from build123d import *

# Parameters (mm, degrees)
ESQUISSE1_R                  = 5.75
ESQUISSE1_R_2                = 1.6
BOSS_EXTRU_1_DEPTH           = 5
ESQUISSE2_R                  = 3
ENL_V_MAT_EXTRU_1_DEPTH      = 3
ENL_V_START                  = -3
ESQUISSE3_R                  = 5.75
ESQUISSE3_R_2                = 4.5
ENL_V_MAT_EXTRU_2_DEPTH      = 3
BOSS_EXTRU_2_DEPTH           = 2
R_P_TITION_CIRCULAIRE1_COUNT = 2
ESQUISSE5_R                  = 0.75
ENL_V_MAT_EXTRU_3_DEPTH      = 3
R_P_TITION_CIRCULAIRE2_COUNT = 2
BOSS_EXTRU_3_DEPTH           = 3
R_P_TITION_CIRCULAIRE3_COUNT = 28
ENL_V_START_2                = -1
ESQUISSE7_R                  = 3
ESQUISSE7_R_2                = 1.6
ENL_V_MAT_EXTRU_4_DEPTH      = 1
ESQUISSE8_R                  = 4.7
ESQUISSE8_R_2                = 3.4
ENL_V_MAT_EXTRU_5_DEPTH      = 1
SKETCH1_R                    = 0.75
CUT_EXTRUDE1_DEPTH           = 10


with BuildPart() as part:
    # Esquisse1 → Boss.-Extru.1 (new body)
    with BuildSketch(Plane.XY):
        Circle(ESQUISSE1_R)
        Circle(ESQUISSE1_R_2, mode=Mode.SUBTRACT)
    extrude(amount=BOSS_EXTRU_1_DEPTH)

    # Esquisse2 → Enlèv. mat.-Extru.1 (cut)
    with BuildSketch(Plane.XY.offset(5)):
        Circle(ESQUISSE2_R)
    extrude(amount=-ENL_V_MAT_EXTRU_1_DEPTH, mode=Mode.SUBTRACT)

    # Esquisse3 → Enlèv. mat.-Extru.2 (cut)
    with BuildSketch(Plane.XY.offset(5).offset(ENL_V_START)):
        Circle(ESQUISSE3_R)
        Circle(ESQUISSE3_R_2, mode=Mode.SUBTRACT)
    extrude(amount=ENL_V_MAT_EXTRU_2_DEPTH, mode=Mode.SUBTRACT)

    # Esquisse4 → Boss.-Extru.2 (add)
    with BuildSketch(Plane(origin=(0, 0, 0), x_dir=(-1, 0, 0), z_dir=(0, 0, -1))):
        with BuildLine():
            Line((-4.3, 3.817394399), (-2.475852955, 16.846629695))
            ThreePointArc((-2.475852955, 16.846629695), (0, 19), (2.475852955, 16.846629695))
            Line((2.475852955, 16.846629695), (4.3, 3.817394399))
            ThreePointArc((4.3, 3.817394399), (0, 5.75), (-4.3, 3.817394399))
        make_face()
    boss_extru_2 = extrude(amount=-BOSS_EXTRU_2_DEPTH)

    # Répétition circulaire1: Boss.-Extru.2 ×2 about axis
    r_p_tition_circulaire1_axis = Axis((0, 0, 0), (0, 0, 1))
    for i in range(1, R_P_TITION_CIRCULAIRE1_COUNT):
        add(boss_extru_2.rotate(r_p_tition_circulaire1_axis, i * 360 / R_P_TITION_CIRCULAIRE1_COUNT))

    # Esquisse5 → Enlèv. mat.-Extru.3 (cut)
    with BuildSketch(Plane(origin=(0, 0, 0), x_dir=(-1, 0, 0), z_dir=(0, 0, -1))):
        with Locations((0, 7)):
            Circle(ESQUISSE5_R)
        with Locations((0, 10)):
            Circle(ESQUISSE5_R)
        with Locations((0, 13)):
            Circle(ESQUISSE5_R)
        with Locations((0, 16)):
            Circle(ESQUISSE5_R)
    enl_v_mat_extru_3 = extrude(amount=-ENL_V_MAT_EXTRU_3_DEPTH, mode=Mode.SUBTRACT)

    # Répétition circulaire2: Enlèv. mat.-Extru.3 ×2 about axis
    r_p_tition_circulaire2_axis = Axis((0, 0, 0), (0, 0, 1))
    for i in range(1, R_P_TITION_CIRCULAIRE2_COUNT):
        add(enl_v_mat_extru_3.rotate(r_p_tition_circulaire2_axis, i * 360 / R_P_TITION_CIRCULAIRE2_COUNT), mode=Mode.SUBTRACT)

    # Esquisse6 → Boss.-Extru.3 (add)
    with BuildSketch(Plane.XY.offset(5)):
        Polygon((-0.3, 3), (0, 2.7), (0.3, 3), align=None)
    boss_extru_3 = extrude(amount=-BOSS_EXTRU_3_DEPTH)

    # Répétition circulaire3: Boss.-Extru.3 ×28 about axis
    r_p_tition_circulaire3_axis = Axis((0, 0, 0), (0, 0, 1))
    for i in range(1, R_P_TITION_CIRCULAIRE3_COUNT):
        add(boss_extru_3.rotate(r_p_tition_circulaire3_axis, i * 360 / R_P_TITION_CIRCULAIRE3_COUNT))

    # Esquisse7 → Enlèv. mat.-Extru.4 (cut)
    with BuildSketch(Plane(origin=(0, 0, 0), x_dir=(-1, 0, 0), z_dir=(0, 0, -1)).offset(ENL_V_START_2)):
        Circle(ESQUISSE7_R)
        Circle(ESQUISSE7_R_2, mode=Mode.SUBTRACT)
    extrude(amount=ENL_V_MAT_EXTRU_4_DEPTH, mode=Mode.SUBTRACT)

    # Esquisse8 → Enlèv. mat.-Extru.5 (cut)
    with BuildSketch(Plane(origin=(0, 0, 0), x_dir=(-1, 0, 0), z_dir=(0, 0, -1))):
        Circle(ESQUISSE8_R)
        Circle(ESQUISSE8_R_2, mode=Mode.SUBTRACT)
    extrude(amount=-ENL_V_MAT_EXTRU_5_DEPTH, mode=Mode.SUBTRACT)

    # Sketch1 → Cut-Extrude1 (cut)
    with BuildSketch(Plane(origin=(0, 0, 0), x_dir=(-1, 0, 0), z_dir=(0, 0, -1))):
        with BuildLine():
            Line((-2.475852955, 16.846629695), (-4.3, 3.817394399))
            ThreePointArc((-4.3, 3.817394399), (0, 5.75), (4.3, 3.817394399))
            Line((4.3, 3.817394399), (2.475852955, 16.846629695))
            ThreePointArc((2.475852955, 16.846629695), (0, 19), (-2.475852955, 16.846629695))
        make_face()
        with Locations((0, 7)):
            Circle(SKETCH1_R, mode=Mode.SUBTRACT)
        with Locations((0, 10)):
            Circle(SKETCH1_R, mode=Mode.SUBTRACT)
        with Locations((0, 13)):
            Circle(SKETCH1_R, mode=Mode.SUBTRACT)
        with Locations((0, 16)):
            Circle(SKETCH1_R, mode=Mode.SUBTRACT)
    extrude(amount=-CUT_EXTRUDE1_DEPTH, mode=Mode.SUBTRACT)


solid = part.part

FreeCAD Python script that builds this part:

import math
import FreeCAD as App
import Part
import Sketcher
from FreeCAD import Vector
Q = App.Units.Quantity

doc = App.newDocument("Part")
body = doc.addObject("PartDesign::Body", "Body")

sketch1 = doc.addObject("Sketcher::SketchObject", "Sketch")
body.addObject(sketch1)
sketch1.AttachmentSupport = (doc.XY_Plane, [""])
sketch1.MapMode = "FlatFace"
sketch1.addGeometry([
    Part.Circle(Vector(0, 0, 0), Vector(0, 0, 1), 5.75),
    Part.Circle(Vector(0, 0, 0), Vector(0, 0, 1), 1.6),
], False)
sketch1.addConstraint([
    Sketcher.Constraint("Coincident", 0, 3, -1, 1),
    Sketcher.Constraint("Coincident", 1, 3, -1, 1),
    Sketcher.Constraint("Diameter", 0, Q("11.5 mm")),
    Sketcher.Constraint("Diameter", 1, Q("3.2 mm")),
])
pad1 = doc.addObject("PartDesign::Pad", "Pad")
body.addObject(pad1)
pad1.Profile = sketch1
pad1.Length = 5

sketch2 = doc.addObject("Sketcher::SketchObject", "Sketch001")
body.addObject(sketch2)
sketch2.AttachmentSupport = (doc.XY_Plane, [""])
sketch2.MapMode = "FlatFace"
sketch2.AttachmentOffset = App.Placement(Vector(0, 0, 5), App.Rotation())
sketch2.addGeometry(Part.Circle(Vector(0, 0, 0), Vector(0, 0, 1), 3), False)
sketch2.addConstraint([
    Sketcher.Constraint("Coincident", 0, 3, -1, 1),
    Sketcher.Constraint("Diameter", 0, Q("6 mm")),
])
pocket1 = doc.addObject("PartDesign::Pocket", "Pocket")
body.addObject(pocket1)
pocket1.Profile = sketch2
pocket1.Length = 3

sketch3 = doc.addObject("Sketcher::SketchObject", "Sketch002")
body.addObject(sketch3)
sketch3.AttachmentSupport = (doc.XY_Plane, [""])
sketch3.MapMode = "FlatFace"
sketch3.AttachmentOffset = App.Placement(Vector(0, 0, 2), App.Rotation())
sketch3.addGeometry([
    Part.Circle(Vector(0, 0, 0), Vector(0, 0, 1), 5.75),
    Part.Circle(Vector(0, 0, 0), Vector(0, 0, 1), 4.5),
], False)
sketch3.addConstraint([
    Sketcher.Constraint("Coincident", 0, 3, -1, 1),
    Sketcher.Constraint("Coincident", 1, 3, -1, 1),
    Sketcher.Constraint("Diameter", 1, Q("9 mm")),
    Sketcher.Constraint("Diameter", 0, Q("11.5 mm")),
])
pocket2 = doc.addObject("PartDesign::Pocket", "Pocket001")
body.addObject(pocket2)
pocket2.Profile = sketch3
pocket2.Length = 3
pocket2.Reversed = True

sketch4 = doc.addObject("Sketcher::SketchObject", "Sketch003")
body.addObject(sketch4)
sketch4.AttachmentSupport = (doc.XY_Plane, [""])
sketch4.MapMode = "FlatFace"
sketch4.addGeometry([
    Part.LineSegment(Vector(2.475853, 16.84663, 0), Vector(4.3, 3.817394, 0)),
    Part.ArcOfCircle(Part.Circle(Vector(0, 0, 0), Vector(0, 0, 1), 5.75), math.radians(41.597584), math.radians(138.402416)),
    Part.LineSegment(Vector(-4.3, 3.817394, 0), Vector(-2.475853, 16.84663, 0)),
    Part.ArcOfCircle(Part.Circle(Vector(0, 16.5, 0), Vector(0, 0, 1), 2.5), math.radians(7.969844), math.radians(172.030156)),
], False)
sketch4.addConstraint([
    Sketcher.Constraint("Coincident", 0, 2, 1, 1),
    Sketcher.Constraint("Coincident", 1, 2, 2, 1),
    Sketcher.Constraint("Tangent", 2, 2, 3, 2),
    Sketcher.Constraint("Tangent", 3, 1, 0, 1),
    Sketcher.Constraint("Coincident", 1, 3, -1, 1),
    Sketcher.Constraint("Symmetric", 2, 2, 3, 1, -2),
    Sketcher.Constraint("Radius", 3, Q("2.5 mm")),
    Sketcher.Constraint("Radius", 1, Q("5.75 mm")),
    Sketcher.Constraint("DistanceY", -1, 1, 3, 3, Q("16.5 mm")),
    Sketcher.Constraint("DistanceX", -1, 1, 0, 2, Q("4.3 mm")),
])
pad2 = doc.addObject("PartDesign::Pad", "Pad001")
body.addObject(pad2)
pad2.Profile = sketch4
pad2.Length = 2
doc.recompute()

polarpattern = doc.addObject("PartDesign::PolarPattern", "PolarPattern")
body.addObject(polarpattern)
polarpattern.Originals = [pad2]
polarpattern.Axis = (doc.Z_Axis, [""])
polarpattern.Angle = 360
polarpattern.Occurrences = 2
body.Tip = polarpattern

sketch5 = doc.addObject("Sketcher::SketchObject", "Sketch004")
body.addObject(sketch5)
sketch5.AttachmentSupport = (doc.XY_Plane, [""])
sketch5.MapMode = "FlatFace"
sketch5.addGeometry([
    Part.Circle(Vector(0, 7, 0), Vector(0, 0, 1), 0.75),
    Part.Circle(Vector(0, 10, 0), Vector(0, 0, 1), 0.75),
    Part.Circle(Vector(0, 13, 0), Vector(0, 0, 1), 0.75),
    Part.Circle(Vector(0, 16, 0), Vector(0, 0, 1), 0.75),
], False)
sketch5.addConstraint([
    Sketcher.Constraint("Equal", 0, 1),
    Sketcher.Constraint("Equal", 1, 2),
    Sketcher.Constraint("Equal", 2, 3),
    Sketcher.Constraint("PointOnObject", 0, 3, -2),
    Sketcher.Constraint("PointOnObject", 1, 3, -2),
    Sketcher.Constraint("PointOnObject", 2, 3, -2),
    Sketcher.Constraint("PointOnObject", 3, 3, -2),
    Sketcher.Constraint("Diameter", 0, Q("1.5 mm")),
    Sketcher.Constraint("DistanceY", -1, 1, 0, 3, Q("7 mm")),
    Sketcher.Constraint("DistanceY", -1, 1, 1, 3, Q("10 mm")),
    Sketcher.Constraint("DistanceY", -1, 1, 2, 3, Q("13 mm")),
    Sketcher.Constraint("DistanceY", -1, 1, 3, 3, Q("16 mm")),
])
pocket3 = doc.addObject("PartDesign::Pocket", "Pocket002")
body.addObject(pocket3)
pocket3.Profile = sketch5
pocket3.Length = 3
pocket3.Reversed = True
doc.recompute()

polarpattern2 = doc.addObject("PartDesign::PolarPattern", "PolarPattern001")
body.addObject(polarpattern2)
polarpattern2.Originals = [pocket3]
polarpattern2.Axis = (doc.Z_Axis, [""])
polarpattern2.Angle = 360
polarpattern2.Occurrences = 2
body.Tip = polarpattern2

sketch6 = doc.addObject("Sketcher::SketchObject", "Sketch005")
body.addObject(sketch6)
sketch6.AttachmentSupport = (doc.XY_Plane, [""])
sketch6.MapMode = "FlatFace"
sketch6.AttachmentOffset = App.Placement(Vector(0, 0, 5), App.Rotation())
sketch6.addGeometry([
    Part.LineSegment(Vector(-0.3, 3, 0), Vector(0, 2.7, 0)),
    Part.LineSegment(Vector(0, 2.7, 0), Vector(0.3, 3, 0)),
    Part.LineSegment(Vector(0.3, 3, 0), Vector(-0.3, 3, 0)),
], False)
sketch6.addConstraint([
    Sketcher.Constraint("Coincident", 0, 2, 1, 1),
    Sketcher.Constraint("Coincident", 1, 2, 2, 1),
    Sketcher.Constraint("Coincident", 2, 2, 0, 1),
    Sketcher.Constraint("Horizontal", 2),
    Sketcher.Constraint("PointOnObject", 0, 2, -2),
    Sketcher.Constraint("Perpendicular", 0, 1),
    Sketcher.Constraint("Equal", 0, 1),
    Sketcher.Constraint("DistanceX", 2, 2, 2, 1, Q("0.6 mm")),
    Sketcher.Constraint("DistanceY", -1, 1, 1, 2, Q("3 mm")),
])
pad3 = doc.addObject("PartDesign::Pad", "Pad002")
body.addObject(pad3)
pad3.Profile = sketch6
pad3.Length = 3
pad3.Reversed = True
doc.recompute()

polarpattern3 = doc.addObject("PartDesign::PolarPattern", "PolarPattern002")
body.addObject(polarpattern3)
polarpattern3.Originals = [pad3]
polarpattern3.Axis = (doc.Z_Axis, [""])
polarpattern3.Angle = 360
polarpattern3.Occurrences = 28
body.Tip = polarpattern3

sketch7 = doc.addObject("Sketcher::SketchObject", "Sketch006")
body.addObject(sketch7)
sketch7.AttachmentSupport = (doc.XY_Plane, [""])
sketch7.MapMode = "FlatFace"
sketch7.AttachmentOffset = App.Placement(Vector(0, 0, 1), App.Rotation())
sketch7.addGeometry([
    Part.Circle(Vector(0, 0, 0), Vector(0, 0, 1), 3),
    Part.Circle(Vector(0, 0, 0), Vector(0, 0, 1), 1.6),
], False)
sketch7.addConstraint([
    Sketcher.Constraint("Coincident", 0, 3, -1, 1),
    Sketcher.Constraint("Coincident", 1, 3, -1, 1),
    Sketcher.Constraint("Diameter", 0, Q("6 mm")),
    Sketcher.Constraint("Diameter", 1, Q("3.2 mm")),
])
pocket4 = doc.addObject("PartDesign::Pocket", "Pocket003")
body.addObject(pocket4)
pocket4.Profile = sketch7
pocket4.Length = 1

sketch8 = doc.addObject("Sketcher::SketchObject", "Sketch007")
body.addObject(sketch8)
sketch8.AttachmentSupport = (doc.XY_Plane, [""])
sketch8.MapMode = "FlatFace"
sketch8.addGeometry([
    Part.Circle(Vector(0, 0, 0), Vector(0, 0, 1), 4.7),
    Part.Circle(Vector(0, 0, 0), Vector(0, 0, 1), 3.4),
], False)
sketch8.addConstraint([
    Sketcher.Constraint("Coincident", 0, 3, -1, 1),
    Sketcher.Constraint("Coincident", 1, 3, -1, 1),
    Sketcher.Constraint("Diameter", 0, Q("9.4 mm")),
    Sketcher.Constraint("Diameter", 1, Q("6.8 mm")),
])
pocket5 = doc.addObject("PartDesign::Pocket", "Pocket004")
body.addObject(pocket5)
pocket5.Profile = sketch8
pocket5.Length = 1
pocket5.Reversed = True

sketch9 = doc.addObject("Sketcher::SketchObject", "Sketch008")
body.addObject(sketch9)
sketch9.AttachmentSupport = (doc.XY_Plane, [""])
sketch9.MapMode = "FlatFace"
sketch9.addGeometry([
    Part.LineSegment(Vector(2.475853, 16.84663, 0), Vector(4.3, 3.817394, 0)),
    Part.ArcOfCircle(Part.Circle(Vector(0, 0, 0), Vector(0, 0, 1), 5.75), math.radians(41.597584), math.radians(138.402416)),
    Part.LineSegment(Vector(-4.3, 3.817394, 0), Vector(-2.475853, 16.84663, 0)),
    Part.ArcOfCircle(Part.Circle(Vector(0, 16.5, 0), Vector(0, 0, 1), 2.5), math.radians(7.969844), math.radians(172.030156)),
    Part.Circle(Vector(0, 7, 0), Vector(0, 0, 1), 0.75),
    Part.Circle(Vector(0, 10, 0), Vector(0, 0, 1), 0.75),
    Part.Circle(Vector(0, 13, 0), Vector(0, 0, 1), 0.75),
    Part.Circle(Vector(0, 16, 0), Vector(0, 0, 1), 0.75),
], False)
sketch9.addConstraint([
    Sketcher.Constraint("Coincident", 0, 2, 1, 1),
    Sketcher.Constraint("Coincident", 1, 2, 2, 1),
    Sketcher.Constraint("Tangent", 2, 2, 3, 2),
    Sketcher.Constraint("Tangent", 3, 1, 0, 1),
    Sketcher.Constraint("Coincident", 1, 3, -1, 1),
    Sketcher.Constraint("Equal", 4, 5),
    Sketcher.Constraint("Equal", 5, 6),
    Sketcher.Constraint("Equal", 6, 7),
    Sketcher.Constraint("Symmetric", 2, 2, 3, 1, -2),
    Sketcher.Constraint("PointOnObject", 4, 3, -2),
    Sketcher.Constraint("PointOnObject", 5, 3, -2),
    Sketcher.Constraint("PointOnObject", 6, 3, -2),
    Sketcher.Constraint("PointOnObject", 7, 3, -2),
    Sketcher.Constraint("Diameter", 4, Q("1.5 mm")),
    Sketcher.Constraint("Radius", 3, Q("2.5 mm")),
    Sketcher.Constraint("Radius", 1, Q("5.75 mm")),
    Sketcher.Constraint("DistanceY", -1, 1, 4, 3, Q("7 mm")),
    Sketcher.Constraint("DistanceY", -1, 1, 5, 3, Q("10 mm")),
    Sketcher.Constraint("DistanceY", -1, 1, 6, 3, Q("13 mm")),
    Sketcher.Constraint("DistanceY", -1, 1, 7, 3, Q("16 mm")),
    Sketcher.Constraint("DistanceY", -1, 1, 3, 3, Q("16.5 mm")),
    Sketcher.Constraint("DistanceX", -1, 1, 0, 2, Q("4.3 mm")),
])
pocket6 = doc.addObject("PartDesign::Pocket", "Pocket005")
body.addObject(pocket6)
pocket6.Profile = sketch9
pocket6.Length = 10
pocket6.Reversed = True

doc.recompute()
